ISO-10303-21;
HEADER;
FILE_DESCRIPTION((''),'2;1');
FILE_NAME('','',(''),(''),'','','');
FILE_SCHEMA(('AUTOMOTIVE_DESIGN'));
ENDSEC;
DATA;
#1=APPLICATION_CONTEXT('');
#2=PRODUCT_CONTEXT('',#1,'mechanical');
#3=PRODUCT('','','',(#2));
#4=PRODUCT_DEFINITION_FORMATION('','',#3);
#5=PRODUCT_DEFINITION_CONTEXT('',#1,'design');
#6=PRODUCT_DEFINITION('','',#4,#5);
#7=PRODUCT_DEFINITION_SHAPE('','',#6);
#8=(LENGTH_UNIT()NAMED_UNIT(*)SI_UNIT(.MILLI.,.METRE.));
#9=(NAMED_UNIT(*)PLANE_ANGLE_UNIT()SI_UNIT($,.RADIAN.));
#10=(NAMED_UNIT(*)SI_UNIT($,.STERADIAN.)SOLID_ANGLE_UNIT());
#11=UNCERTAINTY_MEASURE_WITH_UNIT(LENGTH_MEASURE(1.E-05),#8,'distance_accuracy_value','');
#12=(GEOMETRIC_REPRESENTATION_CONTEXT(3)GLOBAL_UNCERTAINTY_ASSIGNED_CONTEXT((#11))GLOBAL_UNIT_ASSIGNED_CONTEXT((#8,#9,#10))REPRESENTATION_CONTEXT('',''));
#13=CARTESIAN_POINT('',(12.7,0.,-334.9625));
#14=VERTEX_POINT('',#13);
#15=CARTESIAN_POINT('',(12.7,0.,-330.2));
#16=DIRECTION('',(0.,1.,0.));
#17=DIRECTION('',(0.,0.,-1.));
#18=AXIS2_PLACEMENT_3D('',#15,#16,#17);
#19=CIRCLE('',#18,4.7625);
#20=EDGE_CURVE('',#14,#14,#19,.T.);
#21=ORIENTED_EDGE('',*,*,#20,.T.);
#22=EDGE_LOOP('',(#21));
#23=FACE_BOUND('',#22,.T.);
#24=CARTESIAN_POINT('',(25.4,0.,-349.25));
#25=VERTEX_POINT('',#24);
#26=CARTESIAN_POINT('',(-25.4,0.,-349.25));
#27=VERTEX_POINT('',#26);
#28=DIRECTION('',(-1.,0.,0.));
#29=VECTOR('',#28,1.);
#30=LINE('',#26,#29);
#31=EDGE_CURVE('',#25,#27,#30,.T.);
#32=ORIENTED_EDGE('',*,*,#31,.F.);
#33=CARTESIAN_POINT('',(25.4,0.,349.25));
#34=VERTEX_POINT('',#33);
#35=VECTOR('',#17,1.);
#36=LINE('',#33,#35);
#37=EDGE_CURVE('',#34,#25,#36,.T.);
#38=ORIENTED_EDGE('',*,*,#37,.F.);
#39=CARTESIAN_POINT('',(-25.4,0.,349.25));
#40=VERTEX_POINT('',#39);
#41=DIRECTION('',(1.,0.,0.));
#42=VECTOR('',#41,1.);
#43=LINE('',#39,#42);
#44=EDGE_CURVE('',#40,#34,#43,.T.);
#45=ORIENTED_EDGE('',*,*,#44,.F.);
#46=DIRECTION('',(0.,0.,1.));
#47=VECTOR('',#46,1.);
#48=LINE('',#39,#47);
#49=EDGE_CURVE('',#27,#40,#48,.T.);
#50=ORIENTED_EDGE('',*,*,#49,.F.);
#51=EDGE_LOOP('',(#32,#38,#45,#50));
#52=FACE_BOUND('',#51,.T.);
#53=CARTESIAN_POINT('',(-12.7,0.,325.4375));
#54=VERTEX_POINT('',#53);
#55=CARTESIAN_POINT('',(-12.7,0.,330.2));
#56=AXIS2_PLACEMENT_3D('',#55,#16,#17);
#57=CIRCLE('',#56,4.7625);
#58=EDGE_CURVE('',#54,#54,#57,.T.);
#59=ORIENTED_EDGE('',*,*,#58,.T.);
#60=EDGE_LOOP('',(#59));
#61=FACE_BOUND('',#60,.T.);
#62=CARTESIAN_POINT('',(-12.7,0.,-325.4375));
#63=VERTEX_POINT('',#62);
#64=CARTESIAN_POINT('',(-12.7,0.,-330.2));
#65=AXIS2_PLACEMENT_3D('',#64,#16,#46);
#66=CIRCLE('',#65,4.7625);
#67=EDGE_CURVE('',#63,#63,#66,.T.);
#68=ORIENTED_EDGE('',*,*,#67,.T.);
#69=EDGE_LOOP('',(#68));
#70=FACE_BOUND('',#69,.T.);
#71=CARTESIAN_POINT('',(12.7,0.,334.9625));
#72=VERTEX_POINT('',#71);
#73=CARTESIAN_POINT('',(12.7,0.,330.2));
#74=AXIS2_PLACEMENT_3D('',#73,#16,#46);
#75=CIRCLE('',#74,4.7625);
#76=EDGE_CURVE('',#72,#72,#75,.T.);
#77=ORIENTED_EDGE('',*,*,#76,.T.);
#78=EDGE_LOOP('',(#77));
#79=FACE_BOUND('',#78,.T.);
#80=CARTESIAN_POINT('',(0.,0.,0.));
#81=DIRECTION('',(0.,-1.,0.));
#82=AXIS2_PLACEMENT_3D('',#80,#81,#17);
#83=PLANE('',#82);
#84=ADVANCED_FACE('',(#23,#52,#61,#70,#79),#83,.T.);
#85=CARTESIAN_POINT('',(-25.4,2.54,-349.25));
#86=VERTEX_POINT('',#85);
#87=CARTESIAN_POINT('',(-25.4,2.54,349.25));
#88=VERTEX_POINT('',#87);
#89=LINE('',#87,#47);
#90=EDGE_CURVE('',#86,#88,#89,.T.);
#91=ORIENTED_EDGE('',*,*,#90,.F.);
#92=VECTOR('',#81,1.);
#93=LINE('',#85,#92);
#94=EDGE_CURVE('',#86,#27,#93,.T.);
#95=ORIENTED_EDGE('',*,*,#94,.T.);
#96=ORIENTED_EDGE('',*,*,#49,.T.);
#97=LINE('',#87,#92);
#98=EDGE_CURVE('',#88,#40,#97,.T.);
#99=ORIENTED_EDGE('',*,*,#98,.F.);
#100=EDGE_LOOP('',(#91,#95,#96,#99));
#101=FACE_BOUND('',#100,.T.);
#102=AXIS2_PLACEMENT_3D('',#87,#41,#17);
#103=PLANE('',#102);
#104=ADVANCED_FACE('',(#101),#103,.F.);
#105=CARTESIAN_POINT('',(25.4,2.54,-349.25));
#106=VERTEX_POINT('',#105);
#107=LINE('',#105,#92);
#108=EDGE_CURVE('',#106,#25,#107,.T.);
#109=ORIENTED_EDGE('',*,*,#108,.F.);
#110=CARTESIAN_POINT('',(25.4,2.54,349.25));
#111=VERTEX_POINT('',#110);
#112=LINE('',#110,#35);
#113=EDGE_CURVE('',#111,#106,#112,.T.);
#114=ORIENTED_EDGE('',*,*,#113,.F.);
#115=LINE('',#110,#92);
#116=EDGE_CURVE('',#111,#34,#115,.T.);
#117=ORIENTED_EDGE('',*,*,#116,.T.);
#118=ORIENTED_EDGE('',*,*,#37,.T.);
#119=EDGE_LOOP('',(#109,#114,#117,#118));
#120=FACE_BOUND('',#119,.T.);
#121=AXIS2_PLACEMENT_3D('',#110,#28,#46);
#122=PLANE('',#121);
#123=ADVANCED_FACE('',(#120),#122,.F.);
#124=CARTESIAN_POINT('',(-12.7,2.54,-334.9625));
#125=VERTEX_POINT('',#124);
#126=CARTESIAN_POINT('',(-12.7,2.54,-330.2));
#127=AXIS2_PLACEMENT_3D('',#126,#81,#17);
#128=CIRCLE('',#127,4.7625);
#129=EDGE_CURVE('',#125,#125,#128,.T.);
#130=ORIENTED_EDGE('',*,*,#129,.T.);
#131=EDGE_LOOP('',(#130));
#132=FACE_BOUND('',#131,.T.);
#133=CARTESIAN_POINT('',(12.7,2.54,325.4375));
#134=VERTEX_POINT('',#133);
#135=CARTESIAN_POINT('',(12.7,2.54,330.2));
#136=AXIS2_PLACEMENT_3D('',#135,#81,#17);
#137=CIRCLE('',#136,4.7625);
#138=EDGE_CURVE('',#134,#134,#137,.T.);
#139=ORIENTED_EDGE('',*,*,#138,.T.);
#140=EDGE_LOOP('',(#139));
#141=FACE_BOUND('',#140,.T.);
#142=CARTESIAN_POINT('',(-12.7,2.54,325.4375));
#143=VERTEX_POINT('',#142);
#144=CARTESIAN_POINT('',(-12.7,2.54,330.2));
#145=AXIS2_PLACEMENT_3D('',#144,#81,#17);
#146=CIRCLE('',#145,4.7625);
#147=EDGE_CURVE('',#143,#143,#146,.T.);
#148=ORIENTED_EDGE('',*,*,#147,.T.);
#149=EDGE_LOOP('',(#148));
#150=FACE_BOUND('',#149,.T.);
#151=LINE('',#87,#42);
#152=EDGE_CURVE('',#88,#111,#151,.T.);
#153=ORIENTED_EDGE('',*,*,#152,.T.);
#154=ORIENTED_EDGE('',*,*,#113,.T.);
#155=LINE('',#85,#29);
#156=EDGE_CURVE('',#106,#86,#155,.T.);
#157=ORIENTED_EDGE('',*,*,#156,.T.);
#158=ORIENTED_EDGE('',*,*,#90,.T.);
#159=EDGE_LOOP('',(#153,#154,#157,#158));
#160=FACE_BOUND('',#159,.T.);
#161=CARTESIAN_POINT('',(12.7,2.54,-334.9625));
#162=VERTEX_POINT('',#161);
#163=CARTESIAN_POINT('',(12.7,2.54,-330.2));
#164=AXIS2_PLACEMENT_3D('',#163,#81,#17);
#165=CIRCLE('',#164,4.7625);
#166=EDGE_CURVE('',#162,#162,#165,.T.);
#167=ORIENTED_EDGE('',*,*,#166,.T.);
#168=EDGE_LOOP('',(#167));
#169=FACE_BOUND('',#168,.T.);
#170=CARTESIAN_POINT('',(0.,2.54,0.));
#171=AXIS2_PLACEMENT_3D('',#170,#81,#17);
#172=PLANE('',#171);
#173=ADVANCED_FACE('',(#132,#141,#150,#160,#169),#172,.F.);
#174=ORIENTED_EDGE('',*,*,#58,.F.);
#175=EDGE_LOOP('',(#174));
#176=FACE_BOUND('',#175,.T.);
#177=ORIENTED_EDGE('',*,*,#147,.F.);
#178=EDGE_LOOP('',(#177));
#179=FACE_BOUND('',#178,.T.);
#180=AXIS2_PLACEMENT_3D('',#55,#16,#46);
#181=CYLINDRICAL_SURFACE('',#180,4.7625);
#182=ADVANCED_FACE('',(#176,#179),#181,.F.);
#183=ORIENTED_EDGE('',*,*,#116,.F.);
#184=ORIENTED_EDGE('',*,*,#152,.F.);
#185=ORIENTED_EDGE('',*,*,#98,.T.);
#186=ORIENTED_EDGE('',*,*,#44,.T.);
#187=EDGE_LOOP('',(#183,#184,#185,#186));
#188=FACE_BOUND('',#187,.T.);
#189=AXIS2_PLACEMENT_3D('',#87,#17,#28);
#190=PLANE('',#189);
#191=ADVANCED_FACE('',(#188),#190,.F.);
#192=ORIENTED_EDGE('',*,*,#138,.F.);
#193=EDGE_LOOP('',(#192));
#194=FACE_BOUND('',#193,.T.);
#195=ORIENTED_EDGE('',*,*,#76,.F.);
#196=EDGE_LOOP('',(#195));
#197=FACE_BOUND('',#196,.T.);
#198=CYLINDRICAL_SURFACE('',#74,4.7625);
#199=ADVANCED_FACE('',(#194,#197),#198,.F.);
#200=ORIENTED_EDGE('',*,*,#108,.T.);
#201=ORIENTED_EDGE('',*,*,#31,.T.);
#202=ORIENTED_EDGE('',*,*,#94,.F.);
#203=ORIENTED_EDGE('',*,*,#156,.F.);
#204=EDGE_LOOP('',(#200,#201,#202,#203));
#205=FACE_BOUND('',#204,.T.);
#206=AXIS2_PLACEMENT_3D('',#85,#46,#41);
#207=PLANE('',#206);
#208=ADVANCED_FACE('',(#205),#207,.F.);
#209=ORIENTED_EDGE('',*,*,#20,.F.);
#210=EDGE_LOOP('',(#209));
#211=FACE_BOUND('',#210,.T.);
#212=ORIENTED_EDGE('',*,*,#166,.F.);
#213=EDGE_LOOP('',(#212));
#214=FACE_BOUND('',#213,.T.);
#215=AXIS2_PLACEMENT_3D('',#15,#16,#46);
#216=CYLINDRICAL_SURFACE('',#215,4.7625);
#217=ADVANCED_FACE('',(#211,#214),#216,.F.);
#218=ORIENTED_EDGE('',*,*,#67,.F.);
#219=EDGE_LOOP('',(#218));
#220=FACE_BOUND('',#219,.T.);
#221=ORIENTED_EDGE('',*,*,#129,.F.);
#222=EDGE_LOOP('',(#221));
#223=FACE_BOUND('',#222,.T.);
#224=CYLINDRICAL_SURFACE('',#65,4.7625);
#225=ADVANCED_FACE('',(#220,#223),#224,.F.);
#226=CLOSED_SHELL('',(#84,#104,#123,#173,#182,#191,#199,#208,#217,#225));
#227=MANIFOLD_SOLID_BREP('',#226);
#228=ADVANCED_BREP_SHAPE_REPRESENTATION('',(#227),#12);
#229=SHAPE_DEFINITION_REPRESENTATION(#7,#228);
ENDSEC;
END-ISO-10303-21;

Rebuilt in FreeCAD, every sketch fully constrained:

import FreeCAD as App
import Part
import Sketcher
from FreeCAD import Vector
Q = App.Units.Quantity


def add_polygon(sketch, points):
    """Adds a closed chain of lines whose ends are joined by coincident constraints."""
    first, n = sketch.GeometryCount, len(points)
    for a, b in zip(points, points[1:] + points[:1]):
        sketch.addGeometry(Part.LineSegment(App.Vector(*a, 0), App.Vector(*b, 0)), False)
    for i in range(n):
        sketch.addConstraint(Sketcher.Constraint("Coincident", first + i, 2, first + (i + 1) % n, 1))

doc = App.newDocument("Part")
params = doc.addObject("Spreadsheet::Sheet", "Params")
for row, (alias, value) in enumerate([
    ("sketch1_width", "2 in"),
    ("sketch1_height", "27.5 in"),
    ("pad1_length", "0.1 in"),
    ("sketch2_diameter", "0.375 in"),
], start=1):
    params.set(f"A{row}", alias)
    params.set(f"B{row}", "=" + value)
    params.setAlias(f"B{row}", alias)

body = doc.addObject("PartDesign::Body", "Body")

sketch1 = body.newObject("Sketcher::SketchObject", "Sketch")
sketch1.AttachmentSupport = (doc.getObject("XZ_Plane"), [""])
sketch1.MapMode = "FlatFace"
add_polygon(sketch1, [(-25, -349), (-25, 349), (25, 349), (25, -349)])
sketch1.addConstraint([
    Sketcher.Constraint("Vertical", 0),
    Sketcher.Constraint("Horizontal", 1),
    Sketcher.Constraint("Vertical", 2),
    Sketcher.Constraint("Horizontal", 3),
    Sketcher.Constraint("Symmetric", 0, 2, 2, 2, -1, 1),
    Sketcher.Constraint("DistanceX", 1, 1, 1, 2, Q("2 in")),
    Sketcher.Constraint("DistanceY", 0, 1, 0, 2, Q("27.5 in")),
])
sketch1.setExpression("Constraints[9]", "Params.sketch1_width")
sketch1.setExpression("Constraints[10]", "Params.sketch1_height")
pad1 = body.newObject("PartDesign::Pad", "Pad")
pad1.Profile = sketch1
pad1.setExpression("Length", "Params.pad1_length")
pad1.Reversed = True

sketch2 = body.newObject("Sketcher::SketchObject", "Sketch001")
sketch2.AttachmentSupport = (doc.getObject("XZ_Plane"), [""])
sketch2.MapMode = "FlatFace"
sketch2.AttachmentOffset = App.Placement(Vector(0, 0, -0.1 * 25.4), App.Rotation())
sketch2.addGeometry([
    Part.Circle(Vector(-12.7, -330.2, 0), Vector(0, 0, 1), 4.8),
    Part.Circle(Vector(12.7, -330.2, 0), Vector(0, 0, 1), 4.8),
    Part.Circle(Vector(12.7, 330.2, 0), Vector(0, 0, 1), 4.8),
    Part.Circle(Vector(-12.7, 330.2, 0), Vector(0, 0, 1), 4.8),
], False)
sketch2.addConstraint([
    Sketcher.Constraint("Equal", 0, 1),
    Sketcher.Constraint("Equal", 1, 2),
    Sketcher.Constraint("Equal", 2, 3),
    Sketcher.Constraint("Symmetric", 0, 3, 2, 3, -1, 1),
    Sketcher.Constraint("Symmetric", 1, 3, 3, 3, -1, 1),
    Sketcher.Constraint("Symmetric", 0, 3, 1, 3, -2),
    Sketcher.Constraint("Diameter", 0, Q("0.375 in")),
    Sketcher.Constraint("DistanceY", 0, 3, -1, 1, Q("13 in")),
    Sketcher.Constraint("DistanceX", 0, 3, 1, 3, Q("1 in")),
])
sketch2.setExpression("Constraints[6]", "Params.sketch2_diameter")
pocket1 = body.newObject("PartDesign::Pocket", "Pocket")
pocket1.Profile = sketch2
pocket1.Type = "ThroughAll"
pocket1.Midplane = True

doc.recompute()
